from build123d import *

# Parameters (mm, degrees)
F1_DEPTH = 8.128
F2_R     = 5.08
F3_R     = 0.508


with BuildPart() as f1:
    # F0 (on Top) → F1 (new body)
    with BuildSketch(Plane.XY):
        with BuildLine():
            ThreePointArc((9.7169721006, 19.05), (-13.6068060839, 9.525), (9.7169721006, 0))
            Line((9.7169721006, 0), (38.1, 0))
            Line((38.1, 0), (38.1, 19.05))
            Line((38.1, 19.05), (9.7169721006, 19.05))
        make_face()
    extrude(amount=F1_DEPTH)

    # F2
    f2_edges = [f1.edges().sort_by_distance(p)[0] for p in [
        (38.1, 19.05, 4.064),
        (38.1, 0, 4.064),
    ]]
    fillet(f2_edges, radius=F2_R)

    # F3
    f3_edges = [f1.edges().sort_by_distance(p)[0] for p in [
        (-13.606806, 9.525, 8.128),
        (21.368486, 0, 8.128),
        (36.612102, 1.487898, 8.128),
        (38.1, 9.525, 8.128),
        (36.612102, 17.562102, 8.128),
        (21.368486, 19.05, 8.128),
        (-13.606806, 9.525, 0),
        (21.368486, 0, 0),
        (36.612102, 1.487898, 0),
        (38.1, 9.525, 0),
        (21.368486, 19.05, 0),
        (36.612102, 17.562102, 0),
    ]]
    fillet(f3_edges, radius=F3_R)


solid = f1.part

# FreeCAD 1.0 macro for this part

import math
import FreeCAD as App
import Part
import Sketcher

V = App.Vector
Q = App.Units.Quantity


def edges_at(feature, points):
    """Names of the edges that pass closest to the given points."""
    edges = feature.Shape.Edges
    near = lambda p: min(range(len(edges)), key=lambda i: edges[i].distToShape(Part.Vertex(*p))[0])
    return sorted({f"Edge{near(p) + 1}" for p in points})

doc = App.newDocument("Part")
body = doc.addObject("PartDesign::Body", "Body")

sketch1 = doc.addObject("Sketcher::SketchObject", "Sketch")
body.addObject(sketch1)
sketch1.AttachmentSupport = (doc.XY_Plane, [""])
sketch1.MapMode = "FlatFace"
sketch1.addGeometry([
    Part.ArcOfCircle(Part.Circle(V(0, 10, 0), V(0, 0, 1), 14), math.radians(44), math.radians(316)),
    Part.LineSegment(V(10, 0, 0), V(38, 0, 0)),
    Part.LineSegment(V(38, 0, 0), V(38, 19, 0)),
    Part.LineSegment(V(38, 19, 0), V(10, 19, 0)),
], False)
sketch1.addConstraint([
    Sketcher.Constraint("Coincident", 0, 2, 1, 1),
    Sketcher.Constraint("Coincident", 1, 2, 2, 1),
    Sketcher.Constraint("Coincident", 2, 2, 3, 1),
    Sketcher.Constraint("Coincident", 3, 2, 0, 1),
    Sketcher.Constraint("Horizontal", 1),
    Sketcher.Constraint("Vertical", 2),
    Sketcher.Constraint("Horizontal", 3),
    Sketcher.Constraint("PointOnObject", 0, 3, -2),
    Sketcher.Constraint("PointOnObject", 0, 2, -1),
    Sketcher.Constraint("Vertical", 0, 2, 3, 2),
    Sketcher.Constraint("DistanceY", 2, 1, 2, 2, Q("0.75 in")),
    Sketcher.Constraint("DistanceX", -1, 1, 1, 2, Q("1.5 in")),
    Sketcher.Constraint("Radius", 0, 13.606806),
])
pad1 = doc.addObject("PartDesign::Pad", "Pad")
body.addObject(pad1)
pad1.Profile = sketch1
pad1.Length = Q("0.32 in")
doc.recompute()

fillet = doc.addObject("PartDesign::Fillet", "Fillet")
body.addObject(fillet)
fillet.Base = (pad1, edges_at(pad1, [(38.1, 19.05, 4.064), (38.1, 0, 4.064)]))
fillet.Radius = Q("0.2 in")
doc.recompute()

fillet2 = doc.addObject("PartDesign::Fillet", "Fillet001")
body.addObject(fillet2)
fillet2.Base = (fillet, edges_at(fillet, [
    (-13.607, 9.525, 8.128),
    (21.368, 0, 8.128),
    (36.612, 1.488, 8.128),
    (38.1, 9.525, 8.128),
    (36.612, 17.562, 8.128),
    (21.368, 19.05, 8.128),
    (-13.607, 9.525, 0),
    (21.368, 0, 0),
    (36.612, 1.488, 0),
    (38.1, 9.525, 0),
    (21.368, 19.05, 0),
    (36.612, 17.562, 0),
]))
fillet2.Radius = Q("0.02 in")

doc.recompute()
